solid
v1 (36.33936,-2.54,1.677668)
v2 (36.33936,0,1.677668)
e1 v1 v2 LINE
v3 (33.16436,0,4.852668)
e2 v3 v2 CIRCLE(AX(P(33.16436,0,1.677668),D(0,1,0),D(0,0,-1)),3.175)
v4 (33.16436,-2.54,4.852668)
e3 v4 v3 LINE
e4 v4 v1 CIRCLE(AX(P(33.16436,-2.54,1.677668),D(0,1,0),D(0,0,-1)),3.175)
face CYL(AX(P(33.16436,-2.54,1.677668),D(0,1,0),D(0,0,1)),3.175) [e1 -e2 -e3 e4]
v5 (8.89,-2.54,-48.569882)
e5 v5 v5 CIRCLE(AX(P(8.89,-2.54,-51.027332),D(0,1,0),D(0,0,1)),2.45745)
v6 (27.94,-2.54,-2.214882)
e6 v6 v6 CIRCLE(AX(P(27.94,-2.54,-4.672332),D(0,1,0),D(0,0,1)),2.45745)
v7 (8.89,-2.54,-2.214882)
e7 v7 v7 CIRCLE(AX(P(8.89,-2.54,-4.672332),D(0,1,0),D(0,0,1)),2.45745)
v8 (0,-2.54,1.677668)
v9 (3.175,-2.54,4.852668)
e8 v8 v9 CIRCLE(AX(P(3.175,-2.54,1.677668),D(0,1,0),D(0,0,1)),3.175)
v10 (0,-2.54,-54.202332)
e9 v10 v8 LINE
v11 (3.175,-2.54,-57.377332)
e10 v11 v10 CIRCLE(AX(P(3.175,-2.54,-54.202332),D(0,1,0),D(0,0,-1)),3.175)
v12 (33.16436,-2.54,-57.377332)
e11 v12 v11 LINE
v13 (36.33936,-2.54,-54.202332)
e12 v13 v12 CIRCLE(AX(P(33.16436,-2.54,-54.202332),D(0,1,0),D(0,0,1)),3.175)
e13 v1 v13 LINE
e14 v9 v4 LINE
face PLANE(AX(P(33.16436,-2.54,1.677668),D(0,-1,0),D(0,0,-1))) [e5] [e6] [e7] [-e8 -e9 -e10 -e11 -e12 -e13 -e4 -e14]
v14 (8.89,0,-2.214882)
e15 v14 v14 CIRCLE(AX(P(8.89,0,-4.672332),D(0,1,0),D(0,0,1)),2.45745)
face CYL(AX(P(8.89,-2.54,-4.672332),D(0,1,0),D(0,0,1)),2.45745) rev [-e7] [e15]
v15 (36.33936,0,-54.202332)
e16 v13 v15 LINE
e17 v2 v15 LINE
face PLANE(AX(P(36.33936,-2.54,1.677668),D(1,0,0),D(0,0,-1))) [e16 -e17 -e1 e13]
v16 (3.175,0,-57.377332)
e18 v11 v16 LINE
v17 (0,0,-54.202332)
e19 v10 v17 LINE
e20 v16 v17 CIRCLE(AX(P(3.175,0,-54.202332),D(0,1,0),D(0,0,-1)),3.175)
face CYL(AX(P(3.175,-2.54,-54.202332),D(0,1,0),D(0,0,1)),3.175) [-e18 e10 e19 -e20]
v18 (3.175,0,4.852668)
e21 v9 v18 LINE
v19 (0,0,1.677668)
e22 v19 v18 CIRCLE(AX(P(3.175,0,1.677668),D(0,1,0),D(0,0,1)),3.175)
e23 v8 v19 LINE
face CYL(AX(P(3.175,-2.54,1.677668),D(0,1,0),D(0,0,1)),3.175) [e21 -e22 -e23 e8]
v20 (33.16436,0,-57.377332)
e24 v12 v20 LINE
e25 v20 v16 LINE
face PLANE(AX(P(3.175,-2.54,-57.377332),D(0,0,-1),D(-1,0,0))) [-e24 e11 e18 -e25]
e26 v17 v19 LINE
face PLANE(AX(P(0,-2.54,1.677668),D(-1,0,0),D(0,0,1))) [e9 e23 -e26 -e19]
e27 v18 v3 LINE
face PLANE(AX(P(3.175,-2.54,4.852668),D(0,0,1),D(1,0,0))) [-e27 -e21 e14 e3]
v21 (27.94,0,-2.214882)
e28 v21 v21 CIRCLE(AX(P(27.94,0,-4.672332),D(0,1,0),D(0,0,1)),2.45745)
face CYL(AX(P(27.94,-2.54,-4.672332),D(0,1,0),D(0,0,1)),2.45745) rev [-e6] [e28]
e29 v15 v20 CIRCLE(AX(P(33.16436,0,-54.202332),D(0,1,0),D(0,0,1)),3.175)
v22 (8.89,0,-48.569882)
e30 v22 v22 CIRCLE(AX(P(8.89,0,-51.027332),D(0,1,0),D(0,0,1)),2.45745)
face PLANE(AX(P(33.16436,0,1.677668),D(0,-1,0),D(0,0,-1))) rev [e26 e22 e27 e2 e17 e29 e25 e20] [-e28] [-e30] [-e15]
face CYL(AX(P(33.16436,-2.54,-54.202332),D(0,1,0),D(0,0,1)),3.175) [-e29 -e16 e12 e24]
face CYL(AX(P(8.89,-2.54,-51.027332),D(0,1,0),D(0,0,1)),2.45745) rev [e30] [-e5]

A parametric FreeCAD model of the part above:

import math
import FreeCAD as App
import Part
import Sketcher

V = App.Vector
Q = App.Units.Quantity

doc = App.newDocument("Part")
body = doc.addObject("PartDesign::Body", "Body")

# Sketch on XZ plane
sketch1 = body.newObject("Sketcher::SketchObject", "Sketch")
sketch1.AttachmentSupport = (doc.getObject("XZ_Plane"), [""])
sketch1.MapMode = "FlatFace"
sketch1.addGeometry([
    Part.LineSegment(V(3.2, 4.9, 0), V(33.2, 4.9, 0)),  # 0
    Part.ArcOfCircle(Part.Circle(V(33.2, 1.7, 0), V(0, 0, 1), 3.2), math.radians(0), math.radians(90)),  # 1
    Part.LineSegment(V(36.3, 1.7, 0), V(36.3, -54.2, 0)),  # 2
    Part.ArcOfCircle(Part.Circle(V(33.2, -54.2, 0), V(0, 0, 1), 3.2), math.radians(-90), math.radians(0)),  # 3
    Part.LineSegment(V(33.2, -57.4, 0), V(3.2, -57.4, 0)),  # 4
    Part.ArcOfCircle(Part.Circle(V(3.2, -54.2, 0), V(0, 0, 1), 3.2), math.radians(-180), math.radians(-90)),  # 5
    Part.LineSegment(V(0, -54.2, 0), V(0, 1.7, 0)),  # 6
    Part.ArcOfCircle(Part.Circle(V(3.2, 1.7, 0), V(0, 0, 1), 3.2), math.radians(90), math.radians(180)),  # 7
    Part.Circle(V(8.9, -4.7, 0), V(0, 0, 1), 2.5),  # 8
    Part.Circle(V(27.9, -4.7, 0), V(0, 0, 1), 2.5),  # 9
    Part.Circle(V(8.9, -51, 0), V(0, 0, 1), 2.5),  # 10
], False)
sketch1.addConstraint([
    Sketcher.Constraint("Tangent", 0, 2, 1, 2),
    Sketcher.Constraint("Tangent", 1, 1, 2, 1),
    Sketcher.Constraint("Tangent", 2, 2, 3, 2),
    Sketcher.Constraint("Tangent", 3, 1, 4, 1),
    Sketcher.Constraint("Tangent", 4, 2, 5, 2),
    Sketcher.Constraint("Tangent", 5, 1, 6, 1),
    Sketcher.Constraint("Tangent", 6, 2, 7, 2),
    Sketcher.Constraint("Tangent", 7, 1, 0, 1),
    Sketcher.Constraint("Horizontal", 0),
    Sketcher.Constraint("Vertical", 2),
    Sketcher.Constraint("Horizontal", 4),
    Sketcher.Constraint("Vertical", 6),
    Sketcher.Constraint("Equal", 1, 3),
    Sketcher.Constraint("Equal", 3, 5),
    Sketcher.Constraint("Equal", 5, 7),
    Sketcher.Constraint("Equal", 8, 9),
    Sketcher.Constraint("Equal", 9, 10),
    Sketcher.Constraint("PointOnObject", 5, 1, -2),
    Sketcher.Constraint("Horizontal", 8, 3, 9, 3),
    Sketcher.Constraint("Vertical", 8, 3, 10, 3),
    Sketcher.Constraint("DistanceY", 2, 2, 2, 1, Q("2.2 in")),
    Sketcher.Constraint("Radius", 1, Q("0.125 in")),
    Sketcher.Constraint("Diameter", 8, Q("0.1935 in")),
    Sketcher.Constraint("DistanceX", -1, 1, 9, 3, Q("1.1 in")),
    Sketcher.Constraint("DistanceX", -1, 1, 8, 3, Q("0.35 in")),
    Sketcher.Constraint("DistanceY", 8, 3, 7, 3, Q("0.25 in")),
    Sketcher.Constraint("DistanceY", 3, 1, 10, 3, Q("0.25 in")),
    Sketcher.Constraint("DistanceX", 0, 1, 0, 2, Q("29.98936 mm")),
    Sketcher.Constraint("DistanceY", -1, 1, 1, 3, Q("1.677668 mm")),
])
pad1 = body.newObject("PartDesign::Pad", "Pad")
pad1.Profile = sketch1
pad1.Length = Q("0.1 in")

doc.recompute()
